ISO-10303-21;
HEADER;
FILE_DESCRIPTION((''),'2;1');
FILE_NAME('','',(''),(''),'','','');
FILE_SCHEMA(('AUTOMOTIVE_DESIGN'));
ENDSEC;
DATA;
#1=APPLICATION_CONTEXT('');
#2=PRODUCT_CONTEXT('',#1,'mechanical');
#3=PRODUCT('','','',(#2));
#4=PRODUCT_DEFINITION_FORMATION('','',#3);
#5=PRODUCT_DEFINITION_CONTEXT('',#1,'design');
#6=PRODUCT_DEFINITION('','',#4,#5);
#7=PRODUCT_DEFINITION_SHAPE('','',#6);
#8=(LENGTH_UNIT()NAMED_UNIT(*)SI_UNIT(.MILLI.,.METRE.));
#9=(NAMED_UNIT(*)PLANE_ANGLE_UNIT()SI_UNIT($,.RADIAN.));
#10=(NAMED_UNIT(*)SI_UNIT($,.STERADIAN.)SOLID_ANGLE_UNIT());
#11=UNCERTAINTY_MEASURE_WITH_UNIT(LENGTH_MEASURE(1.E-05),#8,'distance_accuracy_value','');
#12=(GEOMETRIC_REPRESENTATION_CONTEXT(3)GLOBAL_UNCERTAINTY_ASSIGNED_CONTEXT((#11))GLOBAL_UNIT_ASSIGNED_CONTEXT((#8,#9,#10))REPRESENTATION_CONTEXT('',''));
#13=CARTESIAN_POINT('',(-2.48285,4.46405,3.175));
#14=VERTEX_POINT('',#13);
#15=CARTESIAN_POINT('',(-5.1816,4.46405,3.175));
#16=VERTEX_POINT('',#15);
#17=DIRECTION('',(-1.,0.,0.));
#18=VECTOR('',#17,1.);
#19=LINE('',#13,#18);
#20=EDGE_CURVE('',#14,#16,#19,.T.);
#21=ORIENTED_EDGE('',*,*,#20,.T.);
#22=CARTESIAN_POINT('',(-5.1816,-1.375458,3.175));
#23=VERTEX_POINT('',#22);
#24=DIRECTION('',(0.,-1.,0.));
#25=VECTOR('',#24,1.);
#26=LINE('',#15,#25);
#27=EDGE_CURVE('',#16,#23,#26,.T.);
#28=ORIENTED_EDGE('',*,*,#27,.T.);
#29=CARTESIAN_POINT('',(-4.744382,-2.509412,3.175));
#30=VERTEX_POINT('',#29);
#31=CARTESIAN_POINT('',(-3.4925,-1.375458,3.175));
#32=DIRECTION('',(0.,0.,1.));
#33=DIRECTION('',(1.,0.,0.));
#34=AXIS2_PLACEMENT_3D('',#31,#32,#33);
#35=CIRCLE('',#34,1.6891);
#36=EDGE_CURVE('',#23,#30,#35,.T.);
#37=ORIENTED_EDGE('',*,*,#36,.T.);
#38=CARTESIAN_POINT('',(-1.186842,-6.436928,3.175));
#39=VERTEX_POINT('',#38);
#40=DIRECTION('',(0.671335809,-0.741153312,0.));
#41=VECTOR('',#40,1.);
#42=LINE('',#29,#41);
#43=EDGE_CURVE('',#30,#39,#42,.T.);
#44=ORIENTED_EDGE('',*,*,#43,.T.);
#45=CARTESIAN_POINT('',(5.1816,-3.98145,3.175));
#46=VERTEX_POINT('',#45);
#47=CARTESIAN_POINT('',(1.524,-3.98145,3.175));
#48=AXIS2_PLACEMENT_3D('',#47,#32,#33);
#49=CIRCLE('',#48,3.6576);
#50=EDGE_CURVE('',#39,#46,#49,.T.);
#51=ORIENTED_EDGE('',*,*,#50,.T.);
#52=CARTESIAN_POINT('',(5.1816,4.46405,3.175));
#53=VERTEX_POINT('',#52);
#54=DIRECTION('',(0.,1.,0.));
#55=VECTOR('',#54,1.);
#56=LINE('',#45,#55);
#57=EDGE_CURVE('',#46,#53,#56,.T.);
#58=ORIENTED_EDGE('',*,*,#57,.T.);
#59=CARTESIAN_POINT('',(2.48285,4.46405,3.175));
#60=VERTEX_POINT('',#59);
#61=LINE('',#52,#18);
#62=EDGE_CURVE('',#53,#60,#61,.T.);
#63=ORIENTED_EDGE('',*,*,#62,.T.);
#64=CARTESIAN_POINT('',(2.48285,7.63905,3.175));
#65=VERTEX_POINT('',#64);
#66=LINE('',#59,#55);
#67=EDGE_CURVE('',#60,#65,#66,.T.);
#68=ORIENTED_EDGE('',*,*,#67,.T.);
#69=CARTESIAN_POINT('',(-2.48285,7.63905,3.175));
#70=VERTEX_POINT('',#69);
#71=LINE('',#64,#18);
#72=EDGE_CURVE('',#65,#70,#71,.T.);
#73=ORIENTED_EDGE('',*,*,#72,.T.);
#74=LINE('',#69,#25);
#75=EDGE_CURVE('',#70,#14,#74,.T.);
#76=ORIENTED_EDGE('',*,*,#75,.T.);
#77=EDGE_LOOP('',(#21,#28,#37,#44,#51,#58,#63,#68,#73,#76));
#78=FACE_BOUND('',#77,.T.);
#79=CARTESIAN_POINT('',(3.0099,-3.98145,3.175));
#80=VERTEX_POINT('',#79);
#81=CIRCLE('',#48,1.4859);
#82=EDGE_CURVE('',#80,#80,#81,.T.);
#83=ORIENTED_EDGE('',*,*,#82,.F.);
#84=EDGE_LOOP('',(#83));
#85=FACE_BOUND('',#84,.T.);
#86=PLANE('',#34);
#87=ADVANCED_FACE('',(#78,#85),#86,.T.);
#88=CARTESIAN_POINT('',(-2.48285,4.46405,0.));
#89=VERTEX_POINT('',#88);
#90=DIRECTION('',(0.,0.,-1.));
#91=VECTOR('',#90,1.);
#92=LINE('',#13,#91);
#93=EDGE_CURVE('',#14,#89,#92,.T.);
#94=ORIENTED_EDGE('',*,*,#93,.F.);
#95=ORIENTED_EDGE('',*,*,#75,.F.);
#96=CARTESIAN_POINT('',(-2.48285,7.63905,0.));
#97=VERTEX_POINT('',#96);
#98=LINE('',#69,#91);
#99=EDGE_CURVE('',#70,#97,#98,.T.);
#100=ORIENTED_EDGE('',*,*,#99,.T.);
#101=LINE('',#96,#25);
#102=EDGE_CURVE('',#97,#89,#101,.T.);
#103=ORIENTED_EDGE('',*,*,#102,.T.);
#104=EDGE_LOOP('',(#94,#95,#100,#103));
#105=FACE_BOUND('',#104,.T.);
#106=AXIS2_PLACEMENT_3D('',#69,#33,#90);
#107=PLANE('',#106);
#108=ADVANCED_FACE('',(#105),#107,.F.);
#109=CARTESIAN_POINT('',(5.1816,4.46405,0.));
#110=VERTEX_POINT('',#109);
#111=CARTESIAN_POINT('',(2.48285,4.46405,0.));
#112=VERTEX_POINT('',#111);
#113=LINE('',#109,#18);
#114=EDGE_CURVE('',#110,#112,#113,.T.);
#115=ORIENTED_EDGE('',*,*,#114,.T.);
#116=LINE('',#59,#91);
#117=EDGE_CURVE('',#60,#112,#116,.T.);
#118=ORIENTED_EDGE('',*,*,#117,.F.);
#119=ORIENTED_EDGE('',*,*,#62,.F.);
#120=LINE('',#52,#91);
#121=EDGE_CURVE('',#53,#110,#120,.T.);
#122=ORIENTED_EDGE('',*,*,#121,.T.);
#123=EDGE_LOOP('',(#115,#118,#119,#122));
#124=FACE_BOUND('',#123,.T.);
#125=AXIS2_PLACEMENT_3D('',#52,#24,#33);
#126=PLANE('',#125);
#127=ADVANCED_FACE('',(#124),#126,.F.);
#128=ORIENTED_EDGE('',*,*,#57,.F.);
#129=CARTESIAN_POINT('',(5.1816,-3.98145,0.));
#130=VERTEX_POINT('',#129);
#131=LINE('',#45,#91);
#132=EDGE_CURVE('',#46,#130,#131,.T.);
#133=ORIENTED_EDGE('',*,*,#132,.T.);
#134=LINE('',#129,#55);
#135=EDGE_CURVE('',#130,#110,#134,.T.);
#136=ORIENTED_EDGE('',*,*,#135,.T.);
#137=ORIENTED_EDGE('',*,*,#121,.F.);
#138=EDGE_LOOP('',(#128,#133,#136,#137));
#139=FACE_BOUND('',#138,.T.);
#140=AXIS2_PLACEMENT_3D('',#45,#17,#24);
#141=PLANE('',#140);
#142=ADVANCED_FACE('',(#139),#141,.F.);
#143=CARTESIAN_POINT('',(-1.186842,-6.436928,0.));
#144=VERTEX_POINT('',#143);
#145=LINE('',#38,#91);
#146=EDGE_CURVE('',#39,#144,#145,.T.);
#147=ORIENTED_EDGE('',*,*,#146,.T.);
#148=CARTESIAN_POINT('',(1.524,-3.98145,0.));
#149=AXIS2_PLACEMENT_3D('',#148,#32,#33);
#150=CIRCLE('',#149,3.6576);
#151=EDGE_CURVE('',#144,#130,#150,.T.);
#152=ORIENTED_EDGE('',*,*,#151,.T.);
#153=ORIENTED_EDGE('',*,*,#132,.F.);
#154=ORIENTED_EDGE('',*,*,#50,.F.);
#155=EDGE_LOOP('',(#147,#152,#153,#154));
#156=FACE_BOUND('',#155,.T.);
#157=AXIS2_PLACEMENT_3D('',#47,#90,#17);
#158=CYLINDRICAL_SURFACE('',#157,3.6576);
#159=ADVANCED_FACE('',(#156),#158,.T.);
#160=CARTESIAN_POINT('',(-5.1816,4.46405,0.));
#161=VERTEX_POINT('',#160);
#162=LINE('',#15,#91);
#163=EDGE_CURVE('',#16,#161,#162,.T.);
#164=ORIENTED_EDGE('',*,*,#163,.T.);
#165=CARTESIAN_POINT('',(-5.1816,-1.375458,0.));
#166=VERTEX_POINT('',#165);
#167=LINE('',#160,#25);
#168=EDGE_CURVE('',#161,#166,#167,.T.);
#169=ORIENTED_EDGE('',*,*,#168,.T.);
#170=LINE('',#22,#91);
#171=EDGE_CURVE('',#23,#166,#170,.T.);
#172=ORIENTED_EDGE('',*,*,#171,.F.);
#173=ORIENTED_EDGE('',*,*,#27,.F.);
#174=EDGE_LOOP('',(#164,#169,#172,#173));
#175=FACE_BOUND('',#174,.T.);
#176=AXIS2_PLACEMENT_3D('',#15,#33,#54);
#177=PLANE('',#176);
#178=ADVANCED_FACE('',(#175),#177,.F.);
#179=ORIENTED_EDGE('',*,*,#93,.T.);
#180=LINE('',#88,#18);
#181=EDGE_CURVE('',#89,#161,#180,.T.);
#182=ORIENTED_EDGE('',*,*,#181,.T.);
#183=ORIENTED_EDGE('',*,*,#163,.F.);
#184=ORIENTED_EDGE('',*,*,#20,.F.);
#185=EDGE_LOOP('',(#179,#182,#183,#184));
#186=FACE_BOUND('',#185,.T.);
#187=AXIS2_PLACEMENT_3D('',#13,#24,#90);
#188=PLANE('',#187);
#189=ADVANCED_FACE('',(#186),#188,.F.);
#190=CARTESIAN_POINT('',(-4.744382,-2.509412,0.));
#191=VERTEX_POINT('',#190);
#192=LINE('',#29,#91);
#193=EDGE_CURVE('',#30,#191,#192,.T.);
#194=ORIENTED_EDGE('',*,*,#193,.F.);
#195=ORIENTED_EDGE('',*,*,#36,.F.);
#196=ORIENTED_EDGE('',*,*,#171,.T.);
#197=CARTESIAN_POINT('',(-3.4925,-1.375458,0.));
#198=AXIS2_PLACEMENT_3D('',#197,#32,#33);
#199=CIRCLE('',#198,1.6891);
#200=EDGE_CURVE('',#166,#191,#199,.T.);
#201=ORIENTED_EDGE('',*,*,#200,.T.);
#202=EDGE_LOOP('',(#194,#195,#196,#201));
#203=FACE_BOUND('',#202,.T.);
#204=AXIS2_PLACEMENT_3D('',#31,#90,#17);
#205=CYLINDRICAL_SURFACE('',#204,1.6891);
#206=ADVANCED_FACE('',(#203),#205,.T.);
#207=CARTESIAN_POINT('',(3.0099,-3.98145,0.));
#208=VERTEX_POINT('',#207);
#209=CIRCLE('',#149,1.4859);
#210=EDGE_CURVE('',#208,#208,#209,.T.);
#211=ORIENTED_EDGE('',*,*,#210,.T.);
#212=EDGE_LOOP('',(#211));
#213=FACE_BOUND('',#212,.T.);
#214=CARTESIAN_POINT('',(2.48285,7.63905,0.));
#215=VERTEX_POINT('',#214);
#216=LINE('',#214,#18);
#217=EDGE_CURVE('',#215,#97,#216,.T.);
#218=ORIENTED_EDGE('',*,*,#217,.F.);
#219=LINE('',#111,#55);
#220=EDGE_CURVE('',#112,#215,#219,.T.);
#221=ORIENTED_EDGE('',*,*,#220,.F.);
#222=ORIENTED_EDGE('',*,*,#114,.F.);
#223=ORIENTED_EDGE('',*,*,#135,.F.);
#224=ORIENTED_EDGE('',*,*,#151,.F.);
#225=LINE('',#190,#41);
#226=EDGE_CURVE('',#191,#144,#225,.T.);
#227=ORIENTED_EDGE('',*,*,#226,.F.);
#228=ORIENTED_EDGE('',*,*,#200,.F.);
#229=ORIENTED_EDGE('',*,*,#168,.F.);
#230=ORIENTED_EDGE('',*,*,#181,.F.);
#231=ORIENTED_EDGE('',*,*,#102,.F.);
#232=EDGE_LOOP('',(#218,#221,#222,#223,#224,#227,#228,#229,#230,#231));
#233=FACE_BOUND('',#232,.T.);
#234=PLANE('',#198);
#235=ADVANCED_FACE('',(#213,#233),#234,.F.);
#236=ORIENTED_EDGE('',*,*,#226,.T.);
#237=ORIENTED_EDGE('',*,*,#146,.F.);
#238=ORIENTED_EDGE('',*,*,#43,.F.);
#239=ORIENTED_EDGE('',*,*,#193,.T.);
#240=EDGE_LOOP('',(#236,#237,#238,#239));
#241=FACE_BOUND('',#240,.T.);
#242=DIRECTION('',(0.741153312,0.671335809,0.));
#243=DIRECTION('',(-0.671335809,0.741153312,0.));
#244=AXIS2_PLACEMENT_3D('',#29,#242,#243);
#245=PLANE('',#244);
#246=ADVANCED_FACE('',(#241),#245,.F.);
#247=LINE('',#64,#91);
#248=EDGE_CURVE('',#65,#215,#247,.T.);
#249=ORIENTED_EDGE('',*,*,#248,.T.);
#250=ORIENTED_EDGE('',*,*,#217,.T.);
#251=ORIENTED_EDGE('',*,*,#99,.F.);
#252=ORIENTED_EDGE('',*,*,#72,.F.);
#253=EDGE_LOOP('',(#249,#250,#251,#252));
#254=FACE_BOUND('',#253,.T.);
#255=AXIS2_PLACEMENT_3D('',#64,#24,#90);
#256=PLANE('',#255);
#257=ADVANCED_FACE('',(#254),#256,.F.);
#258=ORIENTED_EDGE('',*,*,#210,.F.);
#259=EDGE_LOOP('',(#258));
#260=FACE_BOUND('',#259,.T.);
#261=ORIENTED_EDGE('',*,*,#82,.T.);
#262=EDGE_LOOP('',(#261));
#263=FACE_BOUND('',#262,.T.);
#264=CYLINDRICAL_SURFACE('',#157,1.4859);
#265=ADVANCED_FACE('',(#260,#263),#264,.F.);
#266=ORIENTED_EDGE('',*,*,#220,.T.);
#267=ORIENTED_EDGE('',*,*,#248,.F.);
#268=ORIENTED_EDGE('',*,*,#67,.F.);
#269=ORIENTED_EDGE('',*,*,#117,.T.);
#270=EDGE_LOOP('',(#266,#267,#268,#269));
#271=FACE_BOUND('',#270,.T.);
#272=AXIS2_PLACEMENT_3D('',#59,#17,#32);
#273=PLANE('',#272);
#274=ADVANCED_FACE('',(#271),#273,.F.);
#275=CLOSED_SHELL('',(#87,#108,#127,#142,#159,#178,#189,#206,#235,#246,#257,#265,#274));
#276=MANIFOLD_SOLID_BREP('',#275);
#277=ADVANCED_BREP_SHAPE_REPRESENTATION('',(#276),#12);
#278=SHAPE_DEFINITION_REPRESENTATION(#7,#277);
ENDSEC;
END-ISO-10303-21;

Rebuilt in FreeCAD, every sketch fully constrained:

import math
import FreeCAD as App
import Part
import Sketcher

V = App.Vector
Q = App.Units.Quantity

doc = App.newDocument("Part")
params = doc.addObject("Spreadsheet::Sheet", "Params")
for row, (alias, value) in enumerate([
    ("sketch1_diameter", "0.117 in"),
    ("sketch1_radius", "0.144 in"),
    ("sketch1_height", "0.125 in"),
    ("pad1_length", "0.125 in"),
], start=1):
    params.set(f"A{row}", alias)
    params.set(f"B{row}", "=" + value)
    params.setAlias(f"B{row}", alias)

body = doc.addObject("PartDesign::Body", "Body")

sketch1 = body.newObject("Sketcher::SketchObject", "Sketch")
sketch1.AttachmentSupport = (doc.getObject("XY_Plane"), [""])
sketch1.MapMode = "FlatFace"
sketch1.addGeometry(Part.LineSegment(V(-4.744382, -2.509412, 0), V(-1.186842, -6.436928, 0)), False)
sketch1.addGeometry(Part.ArcOfCircle(Part.Circle(V(1.524, -3.98145, 0), V(0, 0, 1), 3.6576), math.radians(-137.829753), math.radians(0)), False)
sketch1.addGeometry(Part.LineSegment(V(5.1816, -3.98145, 0), V(5.1816, 4.46405, 0)), False)
sketch1.addGeometry(Part.LineSegment(V(5.1816, 4.46405, 0), V(2.48285, 4.46405, 0)), False)
sketch1.addGeometry(Part.LineSegment(V(2.48285, 4.46405, 0), V(2.48285, 7.63905, 0)), False)
sketch1.addGeometry(Part.LineSegment(V(2.48285, 7.63905, 0), V(-2.48285, 7.63905, 0)), False)
sketch1.addGeometry(Part.LineSegment(V(-2.48285, 7.63905, 0), V(-2.48285, 4.46405, 0)), False)
sketch1.addGeometry(Part.LineSegment(V(-2.48285, 4.46405, 0), V(-5.1816, 4.46405, 0)), False)
sketch1.addGeometry(Part.LineSegment(V(-5.1816, 4.46405, 0), V(-5.1816, -1.375458, 0)), False)
sketch1.addGeometry(Part.ArcOfCircle(Part.Circle(V(-3.4925, -1.375458, 0), V(0, 0, 1), 1.6891), math.radians(180), math.radians(222.170247)), False)
sketch1.addGeometry(Part.Circle(V(1.524, -3.98145, 0), V(0, 0, 1), 1.4859), False)
sketch1.addConstraint(Sketcher.Constraint("Tangent", 0, 2, 1, 1))
sketch1.addConstraint(Sketcher.Constraint("Tangent", 1, 2, 2, 1))
sketch1.addConstraint(Sketcher.Constraint("Coincident", 2, 2, 3, 1))
sketch1.addConstraint(Sketcher.Constraint("Coincident", 3, 2, 4, 1))
sketch1.addConstraint(Sketcher.Constraint("Coincident", 4, 2, 5, 1))
sketch1.addConstraint(Sketcher.Constraint("Coincident", 5, 2, 6, 1))
sketch1.addConstraint(Sketcher.Constraint("Coincident", 6, 2, 7, 1))
sketch1.addConstraint(Sketcher.Constraint("Coincident", 7, 2, 8, 1))
sketch1.addConstraint(Sketcher.Constraint("Tangent", 8, 2, 9, 1))
sketch1.addConstraint(Sketcher.Constraint("Tangent", 9, 2, 0, 1))
sketch1.addConstraint(Sketcher.Constraint("Vertical", 2))
sketch1.addConstraint(Sketcher.Constraint("Horizontal", 3))
sketch1.addConstraint(Sketcher.Constraint("Vertical", 4))
sketch1.addConstraint(Sketcher.Constraint("Horizontal", 5))
sketch1.addConstraint(Sketcher.Constraint("Vertical", 6))
sketch1.addConstraint(Sketcher.Constraint("Horizontal", 7))
sketch1.addConstraint(Sketcher.Constraint("Vertical", 8))
sketch1.addConstraint(Sketcher.Constraint("Coincident", 10, 3, 1, 3))
sketch1.addConstraint(Sketcher.Constraint("Symmetric", 3, 2, 6, 2, -2))
sketch1.addConstraint(Sketcher.Constraint("Equal", 3, 7))
sketch1.addConstraint(Sketcher.Constraint("Diameter", 10, Q("0.117 in")))
sketch1.addConstraint(Sketcher.Constraint("Radius", 1, Q("0.144 in")))
sketch1.addConstraint(Sketcher.Constraint("Radius", 9, Q("0.0665 in")))
sketch1.addConstraint(Sketcher.Constraint("DistanceY", 4, 1, 4, 2, Q("0.125 in")))
sketch1.addConstraint(Sketcher.Constraint("DistanceX", -1, 1, 1, 3, Q("0.06 in")))
sketch1.addConstraint(Sketcher.Constraint("DistanceX", 5, 2, 5, 1, Q("0.1955 in")))
sketch1.addConstraint(Sketcher.Constraint("DistanceY", 2, 1, 2, 2, Q("0.3325 in")))
sketch1.addConstraint(Sketcher.Constraint("DistanceY", 8, 2, 8, 1, 5.839508))
sketch1.addConstraint(Sketcher.Constraint("DistanceY", 1, 3, -1, 1, 3.98145))
sketch1.setExpression("Constraints[20]", "Params.sketch1_diameter")
sketch1.setExpression("Constraints[21]", "Params.sketch1_radius")
sketch1.setExpression("Constraints[23]", "Params.sketch1_height")
pad1 = body.newObject("PartDesign::Pad", "Pad")
pad1.Profile = sketch1
pad1.setExpression("Length", "Params.pad1_length")

doc.recompute()
